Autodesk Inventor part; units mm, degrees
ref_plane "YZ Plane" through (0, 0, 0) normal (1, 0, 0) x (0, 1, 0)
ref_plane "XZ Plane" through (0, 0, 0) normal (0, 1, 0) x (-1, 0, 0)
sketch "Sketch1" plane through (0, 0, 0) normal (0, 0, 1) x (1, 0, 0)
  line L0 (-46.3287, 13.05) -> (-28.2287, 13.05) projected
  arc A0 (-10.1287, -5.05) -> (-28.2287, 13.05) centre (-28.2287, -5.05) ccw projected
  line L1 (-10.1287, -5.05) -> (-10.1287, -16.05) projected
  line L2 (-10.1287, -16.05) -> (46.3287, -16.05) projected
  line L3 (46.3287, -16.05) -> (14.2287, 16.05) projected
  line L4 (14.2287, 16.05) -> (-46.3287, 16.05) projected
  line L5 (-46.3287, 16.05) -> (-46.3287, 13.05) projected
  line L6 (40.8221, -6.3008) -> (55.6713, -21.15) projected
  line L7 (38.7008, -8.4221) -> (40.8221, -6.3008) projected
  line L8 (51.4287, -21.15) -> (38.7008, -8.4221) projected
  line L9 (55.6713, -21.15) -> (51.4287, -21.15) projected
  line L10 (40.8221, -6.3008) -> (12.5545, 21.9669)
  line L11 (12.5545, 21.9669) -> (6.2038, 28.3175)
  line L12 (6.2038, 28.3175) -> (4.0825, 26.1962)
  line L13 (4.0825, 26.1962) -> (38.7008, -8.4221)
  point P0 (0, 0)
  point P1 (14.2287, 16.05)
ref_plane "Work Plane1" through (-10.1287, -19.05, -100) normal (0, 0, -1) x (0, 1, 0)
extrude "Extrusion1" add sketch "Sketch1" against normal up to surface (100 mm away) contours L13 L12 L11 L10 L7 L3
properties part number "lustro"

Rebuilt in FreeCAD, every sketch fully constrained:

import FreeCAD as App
import Part
import Sketcher

V = App.Vector
Q = App.Units.Quantity


def add_polygon(sketch, points):
    """Adds a closed chain of lines whose ends are joined by coincident constraints."""
    first, n = sketch.GeometryCount, len(points)
    for a, b in zip(points, points[1:] + points[:1]):
        sketch.addGeometry(Part.LineSegment(App.Vector(*a, 0), App.Vector(*b, 0)), False)
    for i in range(n):
        sketch.addConstraint(Sketcher.Constraint("Coincident", first + i, 2, first + (i + 1) % n, 1))

doc = App.newDocument("Part")
body = doc.addObject("PartDesign::Body", "Body")

# Sketch on XY plane
sketch1 = body.newObject("Sketcher::SketchObject", "Sketch")
sketch1.AttachmentSupport = (doc.getObject("XY_Plane"), [""])
sketch1.MapMode = "FlatFace"
add_polygon(sketch1, [(4.1, 26.2), (38.7, -8.4), (40.8, -6.3), (12.6, 22), (6.2, 28.3)])  # lines 0-4
sketch1.addConstraint([
    Sketcher.Constraint("Perpendicular", 0, 1),
    Sketcher.Constraint("Perpendicular", 1, 2),
    Sketcher.Constraint("Parallel", 2, 3),
    Sketcher.Constraint("Perpendicular", 3, 4),
    Sketcher.Constraint("Angle", 0, Q("-45 deg")),
    Sketcher.Constraint("Distance", 1, Q("0.1181 in")),
    Sketcher.Constraint("Distance", 3, Q("0.3536 in")),
    Sketcher.Constraint("DistanceX", 2, 2, 1, 2, Q("1.1129 in")),
    Sketcher.Constraint("DistanceX", -1, 1, 0, 2, Q("38.7008 mm")),
    Sketcher.Constraint("DistanceY", 0, 2, -1, 1, Q("8.422 mm")),
])
pad1 = body.newObject("PartDesign::Pad", "Pad")
pad1.Profile = sketch1
pad1.Length = Q("3.9370079 in")
pad1.Reversed = True

doc.recompute()
